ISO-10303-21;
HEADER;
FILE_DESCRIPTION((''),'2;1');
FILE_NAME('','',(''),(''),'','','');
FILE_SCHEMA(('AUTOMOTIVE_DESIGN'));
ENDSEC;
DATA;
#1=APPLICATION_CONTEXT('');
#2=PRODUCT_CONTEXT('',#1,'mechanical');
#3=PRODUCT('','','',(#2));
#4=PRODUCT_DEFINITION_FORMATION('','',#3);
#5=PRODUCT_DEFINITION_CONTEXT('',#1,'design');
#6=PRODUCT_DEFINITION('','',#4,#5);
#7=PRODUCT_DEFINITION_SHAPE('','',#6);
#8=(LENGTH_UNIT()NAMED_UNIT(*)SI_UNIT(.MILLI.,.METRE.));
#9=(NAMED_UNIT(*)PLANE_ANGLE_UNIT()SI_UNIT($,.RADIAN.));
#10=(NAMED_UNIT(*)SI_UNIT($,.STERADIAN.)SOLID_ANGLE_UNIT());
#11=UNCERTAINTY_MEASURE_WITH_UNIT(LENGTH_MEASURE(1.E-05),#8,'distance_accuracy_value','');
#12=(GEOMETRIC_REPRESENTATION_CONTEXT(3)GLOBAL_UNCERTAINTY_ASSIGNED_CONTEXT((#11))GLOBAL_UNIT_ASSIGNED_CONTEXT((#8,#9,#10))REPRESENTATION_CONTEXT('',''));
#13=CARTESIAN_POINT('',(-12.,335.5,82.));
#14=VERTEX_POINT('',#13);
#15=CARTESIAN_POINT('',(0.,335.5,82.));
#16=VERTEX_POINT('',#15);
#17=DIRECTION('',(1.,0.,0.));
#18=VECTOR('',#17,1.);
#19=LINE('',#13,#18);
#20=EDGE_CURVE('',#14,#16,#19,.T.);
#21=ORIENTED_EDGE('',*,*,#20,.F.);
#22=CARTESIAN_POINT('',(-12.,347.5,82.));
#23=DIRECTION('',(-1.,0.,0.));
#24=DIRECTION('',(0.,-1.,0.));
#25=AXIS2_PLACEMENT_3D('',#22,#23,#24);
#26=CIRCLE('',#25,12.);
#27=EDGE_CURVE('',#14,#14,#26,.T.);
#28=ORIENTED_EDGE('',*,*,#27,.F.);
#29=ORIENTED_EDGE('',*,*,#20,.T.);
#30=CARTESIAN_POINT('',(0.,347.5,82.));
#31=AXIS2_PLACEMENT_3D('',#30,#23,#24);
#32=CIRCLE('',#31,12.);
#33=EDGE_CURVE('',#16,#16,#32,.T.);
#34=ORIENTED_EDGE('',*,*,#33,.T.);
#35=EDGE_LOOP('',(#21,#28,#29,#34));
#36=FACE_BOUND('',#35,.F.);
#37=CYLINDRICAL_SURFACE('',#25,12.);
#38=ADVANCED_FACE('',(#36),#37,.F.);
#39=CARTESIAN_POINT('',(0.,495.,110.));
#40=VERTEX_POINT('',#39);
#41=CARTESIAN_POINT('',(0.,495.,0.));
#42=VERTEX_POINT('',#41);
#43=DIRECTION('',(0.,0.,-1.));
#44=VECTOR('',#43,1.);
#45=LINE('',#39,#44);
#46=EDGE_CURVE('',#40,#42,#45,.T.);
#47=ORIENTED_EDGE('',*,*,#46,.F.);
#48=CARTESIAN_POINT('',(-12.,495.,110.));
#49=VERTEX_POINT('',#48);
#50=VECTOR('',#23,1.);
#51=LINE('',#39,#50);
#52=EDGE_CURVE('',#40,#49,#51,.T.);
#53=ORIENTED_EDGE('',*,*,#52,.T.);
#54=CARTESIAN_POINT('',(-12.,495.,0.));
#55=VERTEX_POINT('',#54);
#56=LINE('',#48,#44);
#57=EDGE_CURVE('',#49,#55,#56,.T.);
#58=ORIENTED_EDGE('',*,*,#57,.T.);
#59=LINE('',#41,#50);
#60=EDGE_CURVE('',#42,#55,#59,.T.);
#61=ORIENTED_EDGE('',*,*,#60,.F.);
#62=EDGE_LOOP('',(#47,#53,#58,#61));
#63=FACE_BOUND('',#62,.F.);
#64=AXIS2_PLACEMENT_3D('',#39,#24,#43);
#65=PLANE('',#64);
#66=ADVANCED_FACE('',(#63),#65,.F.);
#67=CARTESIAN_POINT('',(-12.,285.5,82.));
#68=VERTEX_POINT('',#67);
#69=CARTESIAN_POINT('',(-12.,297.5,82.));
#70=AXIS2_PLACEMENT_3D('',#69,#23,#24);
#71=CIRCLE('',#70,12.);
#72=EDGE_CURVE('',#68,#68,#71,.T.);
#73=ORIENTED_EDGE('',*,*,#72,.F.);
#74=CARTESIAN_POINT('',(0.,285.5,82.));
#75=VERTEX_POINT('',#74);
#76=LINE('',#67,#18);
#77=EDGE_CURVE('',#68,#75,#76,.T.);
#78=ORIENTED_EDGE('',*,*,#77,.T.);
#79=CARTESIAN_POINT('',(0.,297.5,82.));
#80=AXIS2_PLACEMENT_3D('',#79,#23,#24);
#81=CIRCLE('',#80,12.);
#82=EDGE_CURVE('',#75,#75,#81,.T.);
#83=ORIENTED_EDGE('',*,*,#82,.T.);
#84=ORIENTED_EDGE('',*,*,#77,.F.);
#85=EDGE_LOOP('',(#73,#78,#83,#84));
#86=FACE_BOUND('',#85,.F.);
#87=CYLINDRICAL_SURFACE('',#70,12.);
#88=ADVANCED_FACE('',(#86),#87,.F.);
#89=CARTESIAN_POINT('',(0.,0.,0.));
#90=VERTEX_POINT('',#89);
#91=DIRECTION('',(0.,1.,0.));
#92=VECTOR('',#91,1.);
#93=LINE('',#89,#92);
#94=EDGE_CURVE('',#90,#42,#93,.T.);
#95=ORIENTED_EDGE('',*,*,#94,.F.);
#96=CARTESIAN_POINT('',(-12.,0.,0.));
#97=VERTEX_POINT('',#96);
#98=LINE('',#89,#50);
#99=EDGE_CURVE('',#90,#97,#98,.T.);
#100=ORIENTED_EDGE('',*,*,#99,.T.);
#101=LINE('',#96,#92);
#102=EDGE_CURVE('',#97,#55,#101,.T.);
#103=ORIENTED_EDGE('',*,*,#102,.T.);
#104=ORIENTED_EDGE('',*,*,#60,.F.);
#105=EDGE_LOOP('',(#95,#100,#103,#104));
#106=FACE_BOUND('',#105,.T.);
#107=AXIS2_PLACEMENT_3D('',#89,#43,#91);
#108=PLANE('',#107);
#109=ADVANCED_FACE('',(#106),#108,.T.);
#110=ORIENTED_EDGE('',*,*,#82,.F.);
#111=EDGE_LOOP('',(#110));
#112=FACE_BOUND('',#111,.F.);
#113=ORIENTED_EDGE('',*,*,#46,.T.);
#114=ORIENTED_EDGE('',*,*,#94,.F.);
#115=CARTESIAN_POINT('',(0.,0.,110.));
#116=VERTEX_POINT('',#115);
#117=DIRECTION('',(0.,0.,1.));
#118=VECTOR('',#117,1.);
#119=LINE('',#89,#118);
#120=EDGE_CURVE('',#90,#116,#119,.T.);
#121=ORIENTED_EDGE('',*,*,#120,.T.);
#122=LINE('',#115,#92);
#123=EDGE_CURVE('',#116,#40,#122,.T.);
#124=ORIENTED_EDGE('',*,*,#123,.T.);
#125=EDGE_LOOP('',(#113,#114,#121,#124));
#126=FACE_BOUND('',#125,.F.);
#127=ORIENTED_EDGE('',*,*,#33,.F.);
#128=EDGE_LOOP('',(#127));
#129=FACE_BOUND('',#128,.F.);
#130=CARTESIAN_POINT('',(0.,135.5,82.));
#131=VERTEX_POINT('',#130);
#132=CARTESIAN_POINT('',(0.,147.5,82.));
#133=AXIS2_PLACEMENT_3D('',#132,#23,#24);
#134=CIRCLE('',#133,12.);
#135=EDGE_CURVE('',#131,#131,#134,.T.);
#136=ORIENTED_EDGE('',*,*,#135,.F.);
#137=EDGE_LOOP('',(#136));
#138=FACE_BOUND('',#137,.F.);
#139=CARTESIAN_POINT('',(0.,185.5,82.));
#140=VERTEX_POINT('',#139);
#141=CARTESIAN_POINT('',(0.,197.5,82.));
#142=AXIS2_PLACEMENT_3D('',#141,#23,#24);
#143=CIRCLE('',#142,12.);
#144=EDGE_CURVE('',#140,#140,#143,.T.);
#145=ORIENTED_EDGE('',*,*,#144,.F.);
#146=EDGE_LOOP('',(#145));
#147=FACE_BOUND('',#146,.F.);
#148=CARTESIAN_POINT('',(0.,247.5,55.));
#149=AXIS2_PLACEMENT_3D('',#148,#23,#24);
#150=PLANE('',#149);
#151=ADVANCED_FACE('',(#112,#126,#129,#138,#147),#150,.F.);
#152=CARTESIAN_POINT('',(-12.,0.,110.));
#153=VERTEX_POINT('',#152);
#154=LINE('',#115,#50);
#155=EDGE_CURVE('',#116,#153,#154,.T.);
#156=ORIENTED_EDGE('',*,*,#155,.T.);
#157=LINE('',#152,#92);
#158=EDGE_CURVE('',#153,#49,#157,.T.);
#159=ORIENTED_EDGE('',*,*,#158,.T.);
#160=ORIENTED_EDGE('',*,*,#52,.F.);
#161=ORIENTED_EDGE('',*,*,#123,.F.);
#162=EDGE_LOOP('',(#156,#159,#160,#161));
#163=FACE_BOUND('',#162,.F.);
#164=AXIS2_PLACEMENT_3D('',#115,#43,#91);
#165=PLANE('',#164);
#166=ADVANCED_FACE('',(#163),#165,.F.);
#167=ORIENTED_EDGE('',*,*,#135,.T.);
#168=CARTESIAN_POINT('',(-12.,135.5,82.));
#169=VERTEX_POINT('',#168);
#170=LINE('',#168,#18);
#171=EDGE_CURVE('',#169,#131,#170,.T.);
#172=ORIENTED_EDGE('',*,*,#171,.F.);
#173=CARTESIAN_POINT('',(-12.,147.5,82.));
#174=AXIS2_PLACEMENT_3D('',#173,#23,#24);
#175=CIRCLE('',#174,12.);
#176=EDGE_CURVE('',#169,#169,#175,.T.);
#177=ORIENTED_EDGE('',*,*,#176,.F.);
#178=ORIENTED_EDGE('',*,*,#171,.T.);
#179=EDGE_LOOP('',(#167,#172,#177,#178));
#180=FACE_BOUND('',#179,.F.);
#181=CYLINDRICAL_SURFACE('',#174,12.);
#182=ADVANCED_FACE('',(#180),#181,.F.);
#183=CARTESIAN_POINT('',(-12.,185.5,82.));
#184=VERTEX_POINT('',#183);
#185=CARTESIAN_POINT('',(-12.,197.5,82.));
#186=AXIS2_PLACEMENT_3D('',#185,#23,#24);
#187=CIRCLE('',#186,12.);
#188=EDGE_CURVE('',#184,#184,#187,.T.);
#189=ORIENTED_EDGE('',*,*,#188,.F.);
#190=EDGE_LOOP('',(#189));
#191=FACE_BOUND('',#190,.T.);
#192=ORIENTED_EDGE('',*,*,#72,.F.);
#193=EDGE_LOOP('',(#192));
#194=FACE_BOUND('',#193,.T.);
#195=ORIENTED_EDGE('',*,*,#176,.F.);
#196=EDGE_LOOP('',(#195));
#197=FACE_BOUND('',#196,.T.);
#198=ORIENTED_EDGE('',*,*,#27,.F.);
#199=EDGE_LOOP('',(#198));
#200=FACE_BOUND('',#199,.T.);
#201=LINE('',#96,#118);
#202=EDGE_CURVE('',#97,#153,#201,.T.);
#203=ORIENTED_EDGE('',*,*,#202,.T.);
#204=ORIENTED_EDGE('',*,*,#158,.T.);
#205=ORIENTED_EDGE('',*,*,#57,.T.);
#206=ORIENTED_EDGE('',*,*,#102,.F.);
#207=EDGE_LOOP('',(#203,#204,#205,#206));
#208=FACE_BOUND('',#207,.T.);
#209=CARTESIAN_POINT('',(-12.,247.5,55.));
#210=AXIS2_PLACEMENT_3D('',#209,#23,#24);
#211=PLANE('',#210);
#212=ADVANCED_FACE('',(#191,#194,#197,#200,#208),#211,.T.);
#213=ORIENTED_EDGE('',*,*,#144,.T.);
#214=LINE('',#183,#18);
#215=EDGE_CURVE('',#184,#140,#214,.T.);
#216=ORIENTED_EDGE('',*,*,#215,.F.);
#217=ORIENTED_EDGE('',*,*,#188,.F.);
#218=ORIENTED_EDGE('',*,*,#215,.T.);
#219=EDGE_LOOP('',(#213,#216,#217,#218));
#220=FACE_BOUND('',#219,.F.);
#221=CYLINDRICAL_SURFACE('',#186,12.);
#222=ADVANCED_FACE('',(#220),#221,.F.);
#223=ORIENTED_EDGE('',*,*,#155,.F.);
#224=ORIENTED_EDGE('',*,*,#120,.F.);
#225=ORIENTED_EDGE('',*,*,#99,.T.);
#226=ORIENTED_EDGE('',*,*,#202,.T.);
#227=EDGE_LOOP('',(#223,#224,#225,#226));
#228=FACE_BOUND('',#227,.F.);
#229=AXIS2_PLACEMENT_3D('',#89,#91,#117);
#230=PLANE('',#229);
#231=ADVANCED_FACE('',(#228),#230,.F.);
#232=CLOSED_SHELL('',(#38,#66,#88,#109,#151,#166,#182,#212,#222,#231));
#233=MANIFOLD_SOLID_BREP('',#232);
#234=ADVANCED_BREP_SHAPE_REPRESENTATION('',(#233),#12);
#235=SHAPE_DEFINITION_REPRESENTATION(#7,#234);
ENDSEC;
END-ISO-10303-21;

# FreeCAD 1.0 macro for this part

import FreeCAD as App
import Part
import Sketcher

V = App.Vector

doc = App.newDocument("Part")
body = doc.addObject("PartDesign::Body", "Body")

# Sketch on YZ plane
sketch1 = body.newObject("Sketcher::SketchObject", "Sketch")
sketch1.AttachmentSupport = (doc.getObject("YZ_Plane"), [""])
sketch1.MapMode = "FlatFace"
sketch1.addGeometry([
    Part.LineSegment(V(0, 110, 0), V(0, 0, 0)),
    Part.LineSegment(V(0, 0, 0), V(495, 0, 0)),
    Part.LineSegment(V(495, 0, 0), V(495, 110, 0)),
    Part.LineSegment(V(495, 110, 0), V(0, 110, 0)),
], False)
sketch1.addConstraint([
    Sketcher.Constraint("Coincident", 0, 2, 1, 1),
    Sketcher.Constraint("Coincident", 1, 2, 2, 1),
    Sketcher.Constraint("Coincident", 2, 2, 3, 1),
    Sketcher.Constraint("Coincident", 3, 2, 0, 1),
    Sketcher.Constraint("Vertical", 0),
    Sketcher.Constraint("Horizontal", 1),
    Sketcher.Constraint("Vertical", 2),
    Sketcher.Constraint("Horizontal", 3),
    Sketcher.Constraint("Coincident", 0, 2, -1, 1),
    Sketcher.Constraint("DistanceX", 1, 1, 1, 2, 495.0),
    Sketcher.Constraint("DistanceY", 0, 2, 0, 1, 110.0),
])
pad1 = body.newObject("PartDesign::Pad", "Pad")
pad1.Profile = sketch1
pad1.Length = 12
pad1.Reversed = True

# Sketch on YZ plane
sketch2 = body.newObject("Sketcher::SketchObject", "Sketch001")
sketch2.AttachmentSupport = (doc.getObject("YZ_Plane"), [""])
sketch2.MapMode = "FlatFace"
sketch2.AttachmentOffset = App.Placement(V(0, 0, -12), App.Rotation())
sketch2.addGeometry([
    Part.Circle(V(198, 82, 0), V(0, 0, 1), 12),
    Part.Circle(V(298, 82, 0), V(0, 0, 1), 12),
    Part.Circle(V(348, 82, 0), V(0, 0, 1), 12),
    Part.Circle(V(148, 82, 0), V(0, 0, 1), 12),
], False)
sketch2.addConstraint([
    Sketcher.Constraint("Equal", 0, 1),
    Sketcher.Constraint("Equal", 1, 2),
    Sketcher.Constraint("Equal", 2, 3),
    Sketcher.Constraint("Horizontal", 0, 3, 1, 3),
    Sketcher.Constraint("Horizontal", 1, 3, 2, 3),
    Sketcher.Constraint("Horizontal", 2, 3, 3, 3),
    Sketcher.Constraint("Diameter", 0, 24.0),
    Sketcher.Constraint("DistanceY", -1, 1, 0, 3, 82.0),
    Sketcher.Constraint("DistanceX", 0, 3, 1, 3, 100.0),
    Sketcher.Constraint("DistanceX", 1, 3, 2, 3, 50.0),
    Sketcher.Constraint("DistanceX", 3, 3, 0, 3, 50.0),
    Sketcher.Constraint("DistanceX", -1, 1, 0, 3, 197.5),
])
pocket1 = body.newObject("PartDesign::Pocket", "Pocket")
pocket1.Profile = sketch2
pocket1.Length = 20
pocket1.Reversed = True

doc.recompute()
